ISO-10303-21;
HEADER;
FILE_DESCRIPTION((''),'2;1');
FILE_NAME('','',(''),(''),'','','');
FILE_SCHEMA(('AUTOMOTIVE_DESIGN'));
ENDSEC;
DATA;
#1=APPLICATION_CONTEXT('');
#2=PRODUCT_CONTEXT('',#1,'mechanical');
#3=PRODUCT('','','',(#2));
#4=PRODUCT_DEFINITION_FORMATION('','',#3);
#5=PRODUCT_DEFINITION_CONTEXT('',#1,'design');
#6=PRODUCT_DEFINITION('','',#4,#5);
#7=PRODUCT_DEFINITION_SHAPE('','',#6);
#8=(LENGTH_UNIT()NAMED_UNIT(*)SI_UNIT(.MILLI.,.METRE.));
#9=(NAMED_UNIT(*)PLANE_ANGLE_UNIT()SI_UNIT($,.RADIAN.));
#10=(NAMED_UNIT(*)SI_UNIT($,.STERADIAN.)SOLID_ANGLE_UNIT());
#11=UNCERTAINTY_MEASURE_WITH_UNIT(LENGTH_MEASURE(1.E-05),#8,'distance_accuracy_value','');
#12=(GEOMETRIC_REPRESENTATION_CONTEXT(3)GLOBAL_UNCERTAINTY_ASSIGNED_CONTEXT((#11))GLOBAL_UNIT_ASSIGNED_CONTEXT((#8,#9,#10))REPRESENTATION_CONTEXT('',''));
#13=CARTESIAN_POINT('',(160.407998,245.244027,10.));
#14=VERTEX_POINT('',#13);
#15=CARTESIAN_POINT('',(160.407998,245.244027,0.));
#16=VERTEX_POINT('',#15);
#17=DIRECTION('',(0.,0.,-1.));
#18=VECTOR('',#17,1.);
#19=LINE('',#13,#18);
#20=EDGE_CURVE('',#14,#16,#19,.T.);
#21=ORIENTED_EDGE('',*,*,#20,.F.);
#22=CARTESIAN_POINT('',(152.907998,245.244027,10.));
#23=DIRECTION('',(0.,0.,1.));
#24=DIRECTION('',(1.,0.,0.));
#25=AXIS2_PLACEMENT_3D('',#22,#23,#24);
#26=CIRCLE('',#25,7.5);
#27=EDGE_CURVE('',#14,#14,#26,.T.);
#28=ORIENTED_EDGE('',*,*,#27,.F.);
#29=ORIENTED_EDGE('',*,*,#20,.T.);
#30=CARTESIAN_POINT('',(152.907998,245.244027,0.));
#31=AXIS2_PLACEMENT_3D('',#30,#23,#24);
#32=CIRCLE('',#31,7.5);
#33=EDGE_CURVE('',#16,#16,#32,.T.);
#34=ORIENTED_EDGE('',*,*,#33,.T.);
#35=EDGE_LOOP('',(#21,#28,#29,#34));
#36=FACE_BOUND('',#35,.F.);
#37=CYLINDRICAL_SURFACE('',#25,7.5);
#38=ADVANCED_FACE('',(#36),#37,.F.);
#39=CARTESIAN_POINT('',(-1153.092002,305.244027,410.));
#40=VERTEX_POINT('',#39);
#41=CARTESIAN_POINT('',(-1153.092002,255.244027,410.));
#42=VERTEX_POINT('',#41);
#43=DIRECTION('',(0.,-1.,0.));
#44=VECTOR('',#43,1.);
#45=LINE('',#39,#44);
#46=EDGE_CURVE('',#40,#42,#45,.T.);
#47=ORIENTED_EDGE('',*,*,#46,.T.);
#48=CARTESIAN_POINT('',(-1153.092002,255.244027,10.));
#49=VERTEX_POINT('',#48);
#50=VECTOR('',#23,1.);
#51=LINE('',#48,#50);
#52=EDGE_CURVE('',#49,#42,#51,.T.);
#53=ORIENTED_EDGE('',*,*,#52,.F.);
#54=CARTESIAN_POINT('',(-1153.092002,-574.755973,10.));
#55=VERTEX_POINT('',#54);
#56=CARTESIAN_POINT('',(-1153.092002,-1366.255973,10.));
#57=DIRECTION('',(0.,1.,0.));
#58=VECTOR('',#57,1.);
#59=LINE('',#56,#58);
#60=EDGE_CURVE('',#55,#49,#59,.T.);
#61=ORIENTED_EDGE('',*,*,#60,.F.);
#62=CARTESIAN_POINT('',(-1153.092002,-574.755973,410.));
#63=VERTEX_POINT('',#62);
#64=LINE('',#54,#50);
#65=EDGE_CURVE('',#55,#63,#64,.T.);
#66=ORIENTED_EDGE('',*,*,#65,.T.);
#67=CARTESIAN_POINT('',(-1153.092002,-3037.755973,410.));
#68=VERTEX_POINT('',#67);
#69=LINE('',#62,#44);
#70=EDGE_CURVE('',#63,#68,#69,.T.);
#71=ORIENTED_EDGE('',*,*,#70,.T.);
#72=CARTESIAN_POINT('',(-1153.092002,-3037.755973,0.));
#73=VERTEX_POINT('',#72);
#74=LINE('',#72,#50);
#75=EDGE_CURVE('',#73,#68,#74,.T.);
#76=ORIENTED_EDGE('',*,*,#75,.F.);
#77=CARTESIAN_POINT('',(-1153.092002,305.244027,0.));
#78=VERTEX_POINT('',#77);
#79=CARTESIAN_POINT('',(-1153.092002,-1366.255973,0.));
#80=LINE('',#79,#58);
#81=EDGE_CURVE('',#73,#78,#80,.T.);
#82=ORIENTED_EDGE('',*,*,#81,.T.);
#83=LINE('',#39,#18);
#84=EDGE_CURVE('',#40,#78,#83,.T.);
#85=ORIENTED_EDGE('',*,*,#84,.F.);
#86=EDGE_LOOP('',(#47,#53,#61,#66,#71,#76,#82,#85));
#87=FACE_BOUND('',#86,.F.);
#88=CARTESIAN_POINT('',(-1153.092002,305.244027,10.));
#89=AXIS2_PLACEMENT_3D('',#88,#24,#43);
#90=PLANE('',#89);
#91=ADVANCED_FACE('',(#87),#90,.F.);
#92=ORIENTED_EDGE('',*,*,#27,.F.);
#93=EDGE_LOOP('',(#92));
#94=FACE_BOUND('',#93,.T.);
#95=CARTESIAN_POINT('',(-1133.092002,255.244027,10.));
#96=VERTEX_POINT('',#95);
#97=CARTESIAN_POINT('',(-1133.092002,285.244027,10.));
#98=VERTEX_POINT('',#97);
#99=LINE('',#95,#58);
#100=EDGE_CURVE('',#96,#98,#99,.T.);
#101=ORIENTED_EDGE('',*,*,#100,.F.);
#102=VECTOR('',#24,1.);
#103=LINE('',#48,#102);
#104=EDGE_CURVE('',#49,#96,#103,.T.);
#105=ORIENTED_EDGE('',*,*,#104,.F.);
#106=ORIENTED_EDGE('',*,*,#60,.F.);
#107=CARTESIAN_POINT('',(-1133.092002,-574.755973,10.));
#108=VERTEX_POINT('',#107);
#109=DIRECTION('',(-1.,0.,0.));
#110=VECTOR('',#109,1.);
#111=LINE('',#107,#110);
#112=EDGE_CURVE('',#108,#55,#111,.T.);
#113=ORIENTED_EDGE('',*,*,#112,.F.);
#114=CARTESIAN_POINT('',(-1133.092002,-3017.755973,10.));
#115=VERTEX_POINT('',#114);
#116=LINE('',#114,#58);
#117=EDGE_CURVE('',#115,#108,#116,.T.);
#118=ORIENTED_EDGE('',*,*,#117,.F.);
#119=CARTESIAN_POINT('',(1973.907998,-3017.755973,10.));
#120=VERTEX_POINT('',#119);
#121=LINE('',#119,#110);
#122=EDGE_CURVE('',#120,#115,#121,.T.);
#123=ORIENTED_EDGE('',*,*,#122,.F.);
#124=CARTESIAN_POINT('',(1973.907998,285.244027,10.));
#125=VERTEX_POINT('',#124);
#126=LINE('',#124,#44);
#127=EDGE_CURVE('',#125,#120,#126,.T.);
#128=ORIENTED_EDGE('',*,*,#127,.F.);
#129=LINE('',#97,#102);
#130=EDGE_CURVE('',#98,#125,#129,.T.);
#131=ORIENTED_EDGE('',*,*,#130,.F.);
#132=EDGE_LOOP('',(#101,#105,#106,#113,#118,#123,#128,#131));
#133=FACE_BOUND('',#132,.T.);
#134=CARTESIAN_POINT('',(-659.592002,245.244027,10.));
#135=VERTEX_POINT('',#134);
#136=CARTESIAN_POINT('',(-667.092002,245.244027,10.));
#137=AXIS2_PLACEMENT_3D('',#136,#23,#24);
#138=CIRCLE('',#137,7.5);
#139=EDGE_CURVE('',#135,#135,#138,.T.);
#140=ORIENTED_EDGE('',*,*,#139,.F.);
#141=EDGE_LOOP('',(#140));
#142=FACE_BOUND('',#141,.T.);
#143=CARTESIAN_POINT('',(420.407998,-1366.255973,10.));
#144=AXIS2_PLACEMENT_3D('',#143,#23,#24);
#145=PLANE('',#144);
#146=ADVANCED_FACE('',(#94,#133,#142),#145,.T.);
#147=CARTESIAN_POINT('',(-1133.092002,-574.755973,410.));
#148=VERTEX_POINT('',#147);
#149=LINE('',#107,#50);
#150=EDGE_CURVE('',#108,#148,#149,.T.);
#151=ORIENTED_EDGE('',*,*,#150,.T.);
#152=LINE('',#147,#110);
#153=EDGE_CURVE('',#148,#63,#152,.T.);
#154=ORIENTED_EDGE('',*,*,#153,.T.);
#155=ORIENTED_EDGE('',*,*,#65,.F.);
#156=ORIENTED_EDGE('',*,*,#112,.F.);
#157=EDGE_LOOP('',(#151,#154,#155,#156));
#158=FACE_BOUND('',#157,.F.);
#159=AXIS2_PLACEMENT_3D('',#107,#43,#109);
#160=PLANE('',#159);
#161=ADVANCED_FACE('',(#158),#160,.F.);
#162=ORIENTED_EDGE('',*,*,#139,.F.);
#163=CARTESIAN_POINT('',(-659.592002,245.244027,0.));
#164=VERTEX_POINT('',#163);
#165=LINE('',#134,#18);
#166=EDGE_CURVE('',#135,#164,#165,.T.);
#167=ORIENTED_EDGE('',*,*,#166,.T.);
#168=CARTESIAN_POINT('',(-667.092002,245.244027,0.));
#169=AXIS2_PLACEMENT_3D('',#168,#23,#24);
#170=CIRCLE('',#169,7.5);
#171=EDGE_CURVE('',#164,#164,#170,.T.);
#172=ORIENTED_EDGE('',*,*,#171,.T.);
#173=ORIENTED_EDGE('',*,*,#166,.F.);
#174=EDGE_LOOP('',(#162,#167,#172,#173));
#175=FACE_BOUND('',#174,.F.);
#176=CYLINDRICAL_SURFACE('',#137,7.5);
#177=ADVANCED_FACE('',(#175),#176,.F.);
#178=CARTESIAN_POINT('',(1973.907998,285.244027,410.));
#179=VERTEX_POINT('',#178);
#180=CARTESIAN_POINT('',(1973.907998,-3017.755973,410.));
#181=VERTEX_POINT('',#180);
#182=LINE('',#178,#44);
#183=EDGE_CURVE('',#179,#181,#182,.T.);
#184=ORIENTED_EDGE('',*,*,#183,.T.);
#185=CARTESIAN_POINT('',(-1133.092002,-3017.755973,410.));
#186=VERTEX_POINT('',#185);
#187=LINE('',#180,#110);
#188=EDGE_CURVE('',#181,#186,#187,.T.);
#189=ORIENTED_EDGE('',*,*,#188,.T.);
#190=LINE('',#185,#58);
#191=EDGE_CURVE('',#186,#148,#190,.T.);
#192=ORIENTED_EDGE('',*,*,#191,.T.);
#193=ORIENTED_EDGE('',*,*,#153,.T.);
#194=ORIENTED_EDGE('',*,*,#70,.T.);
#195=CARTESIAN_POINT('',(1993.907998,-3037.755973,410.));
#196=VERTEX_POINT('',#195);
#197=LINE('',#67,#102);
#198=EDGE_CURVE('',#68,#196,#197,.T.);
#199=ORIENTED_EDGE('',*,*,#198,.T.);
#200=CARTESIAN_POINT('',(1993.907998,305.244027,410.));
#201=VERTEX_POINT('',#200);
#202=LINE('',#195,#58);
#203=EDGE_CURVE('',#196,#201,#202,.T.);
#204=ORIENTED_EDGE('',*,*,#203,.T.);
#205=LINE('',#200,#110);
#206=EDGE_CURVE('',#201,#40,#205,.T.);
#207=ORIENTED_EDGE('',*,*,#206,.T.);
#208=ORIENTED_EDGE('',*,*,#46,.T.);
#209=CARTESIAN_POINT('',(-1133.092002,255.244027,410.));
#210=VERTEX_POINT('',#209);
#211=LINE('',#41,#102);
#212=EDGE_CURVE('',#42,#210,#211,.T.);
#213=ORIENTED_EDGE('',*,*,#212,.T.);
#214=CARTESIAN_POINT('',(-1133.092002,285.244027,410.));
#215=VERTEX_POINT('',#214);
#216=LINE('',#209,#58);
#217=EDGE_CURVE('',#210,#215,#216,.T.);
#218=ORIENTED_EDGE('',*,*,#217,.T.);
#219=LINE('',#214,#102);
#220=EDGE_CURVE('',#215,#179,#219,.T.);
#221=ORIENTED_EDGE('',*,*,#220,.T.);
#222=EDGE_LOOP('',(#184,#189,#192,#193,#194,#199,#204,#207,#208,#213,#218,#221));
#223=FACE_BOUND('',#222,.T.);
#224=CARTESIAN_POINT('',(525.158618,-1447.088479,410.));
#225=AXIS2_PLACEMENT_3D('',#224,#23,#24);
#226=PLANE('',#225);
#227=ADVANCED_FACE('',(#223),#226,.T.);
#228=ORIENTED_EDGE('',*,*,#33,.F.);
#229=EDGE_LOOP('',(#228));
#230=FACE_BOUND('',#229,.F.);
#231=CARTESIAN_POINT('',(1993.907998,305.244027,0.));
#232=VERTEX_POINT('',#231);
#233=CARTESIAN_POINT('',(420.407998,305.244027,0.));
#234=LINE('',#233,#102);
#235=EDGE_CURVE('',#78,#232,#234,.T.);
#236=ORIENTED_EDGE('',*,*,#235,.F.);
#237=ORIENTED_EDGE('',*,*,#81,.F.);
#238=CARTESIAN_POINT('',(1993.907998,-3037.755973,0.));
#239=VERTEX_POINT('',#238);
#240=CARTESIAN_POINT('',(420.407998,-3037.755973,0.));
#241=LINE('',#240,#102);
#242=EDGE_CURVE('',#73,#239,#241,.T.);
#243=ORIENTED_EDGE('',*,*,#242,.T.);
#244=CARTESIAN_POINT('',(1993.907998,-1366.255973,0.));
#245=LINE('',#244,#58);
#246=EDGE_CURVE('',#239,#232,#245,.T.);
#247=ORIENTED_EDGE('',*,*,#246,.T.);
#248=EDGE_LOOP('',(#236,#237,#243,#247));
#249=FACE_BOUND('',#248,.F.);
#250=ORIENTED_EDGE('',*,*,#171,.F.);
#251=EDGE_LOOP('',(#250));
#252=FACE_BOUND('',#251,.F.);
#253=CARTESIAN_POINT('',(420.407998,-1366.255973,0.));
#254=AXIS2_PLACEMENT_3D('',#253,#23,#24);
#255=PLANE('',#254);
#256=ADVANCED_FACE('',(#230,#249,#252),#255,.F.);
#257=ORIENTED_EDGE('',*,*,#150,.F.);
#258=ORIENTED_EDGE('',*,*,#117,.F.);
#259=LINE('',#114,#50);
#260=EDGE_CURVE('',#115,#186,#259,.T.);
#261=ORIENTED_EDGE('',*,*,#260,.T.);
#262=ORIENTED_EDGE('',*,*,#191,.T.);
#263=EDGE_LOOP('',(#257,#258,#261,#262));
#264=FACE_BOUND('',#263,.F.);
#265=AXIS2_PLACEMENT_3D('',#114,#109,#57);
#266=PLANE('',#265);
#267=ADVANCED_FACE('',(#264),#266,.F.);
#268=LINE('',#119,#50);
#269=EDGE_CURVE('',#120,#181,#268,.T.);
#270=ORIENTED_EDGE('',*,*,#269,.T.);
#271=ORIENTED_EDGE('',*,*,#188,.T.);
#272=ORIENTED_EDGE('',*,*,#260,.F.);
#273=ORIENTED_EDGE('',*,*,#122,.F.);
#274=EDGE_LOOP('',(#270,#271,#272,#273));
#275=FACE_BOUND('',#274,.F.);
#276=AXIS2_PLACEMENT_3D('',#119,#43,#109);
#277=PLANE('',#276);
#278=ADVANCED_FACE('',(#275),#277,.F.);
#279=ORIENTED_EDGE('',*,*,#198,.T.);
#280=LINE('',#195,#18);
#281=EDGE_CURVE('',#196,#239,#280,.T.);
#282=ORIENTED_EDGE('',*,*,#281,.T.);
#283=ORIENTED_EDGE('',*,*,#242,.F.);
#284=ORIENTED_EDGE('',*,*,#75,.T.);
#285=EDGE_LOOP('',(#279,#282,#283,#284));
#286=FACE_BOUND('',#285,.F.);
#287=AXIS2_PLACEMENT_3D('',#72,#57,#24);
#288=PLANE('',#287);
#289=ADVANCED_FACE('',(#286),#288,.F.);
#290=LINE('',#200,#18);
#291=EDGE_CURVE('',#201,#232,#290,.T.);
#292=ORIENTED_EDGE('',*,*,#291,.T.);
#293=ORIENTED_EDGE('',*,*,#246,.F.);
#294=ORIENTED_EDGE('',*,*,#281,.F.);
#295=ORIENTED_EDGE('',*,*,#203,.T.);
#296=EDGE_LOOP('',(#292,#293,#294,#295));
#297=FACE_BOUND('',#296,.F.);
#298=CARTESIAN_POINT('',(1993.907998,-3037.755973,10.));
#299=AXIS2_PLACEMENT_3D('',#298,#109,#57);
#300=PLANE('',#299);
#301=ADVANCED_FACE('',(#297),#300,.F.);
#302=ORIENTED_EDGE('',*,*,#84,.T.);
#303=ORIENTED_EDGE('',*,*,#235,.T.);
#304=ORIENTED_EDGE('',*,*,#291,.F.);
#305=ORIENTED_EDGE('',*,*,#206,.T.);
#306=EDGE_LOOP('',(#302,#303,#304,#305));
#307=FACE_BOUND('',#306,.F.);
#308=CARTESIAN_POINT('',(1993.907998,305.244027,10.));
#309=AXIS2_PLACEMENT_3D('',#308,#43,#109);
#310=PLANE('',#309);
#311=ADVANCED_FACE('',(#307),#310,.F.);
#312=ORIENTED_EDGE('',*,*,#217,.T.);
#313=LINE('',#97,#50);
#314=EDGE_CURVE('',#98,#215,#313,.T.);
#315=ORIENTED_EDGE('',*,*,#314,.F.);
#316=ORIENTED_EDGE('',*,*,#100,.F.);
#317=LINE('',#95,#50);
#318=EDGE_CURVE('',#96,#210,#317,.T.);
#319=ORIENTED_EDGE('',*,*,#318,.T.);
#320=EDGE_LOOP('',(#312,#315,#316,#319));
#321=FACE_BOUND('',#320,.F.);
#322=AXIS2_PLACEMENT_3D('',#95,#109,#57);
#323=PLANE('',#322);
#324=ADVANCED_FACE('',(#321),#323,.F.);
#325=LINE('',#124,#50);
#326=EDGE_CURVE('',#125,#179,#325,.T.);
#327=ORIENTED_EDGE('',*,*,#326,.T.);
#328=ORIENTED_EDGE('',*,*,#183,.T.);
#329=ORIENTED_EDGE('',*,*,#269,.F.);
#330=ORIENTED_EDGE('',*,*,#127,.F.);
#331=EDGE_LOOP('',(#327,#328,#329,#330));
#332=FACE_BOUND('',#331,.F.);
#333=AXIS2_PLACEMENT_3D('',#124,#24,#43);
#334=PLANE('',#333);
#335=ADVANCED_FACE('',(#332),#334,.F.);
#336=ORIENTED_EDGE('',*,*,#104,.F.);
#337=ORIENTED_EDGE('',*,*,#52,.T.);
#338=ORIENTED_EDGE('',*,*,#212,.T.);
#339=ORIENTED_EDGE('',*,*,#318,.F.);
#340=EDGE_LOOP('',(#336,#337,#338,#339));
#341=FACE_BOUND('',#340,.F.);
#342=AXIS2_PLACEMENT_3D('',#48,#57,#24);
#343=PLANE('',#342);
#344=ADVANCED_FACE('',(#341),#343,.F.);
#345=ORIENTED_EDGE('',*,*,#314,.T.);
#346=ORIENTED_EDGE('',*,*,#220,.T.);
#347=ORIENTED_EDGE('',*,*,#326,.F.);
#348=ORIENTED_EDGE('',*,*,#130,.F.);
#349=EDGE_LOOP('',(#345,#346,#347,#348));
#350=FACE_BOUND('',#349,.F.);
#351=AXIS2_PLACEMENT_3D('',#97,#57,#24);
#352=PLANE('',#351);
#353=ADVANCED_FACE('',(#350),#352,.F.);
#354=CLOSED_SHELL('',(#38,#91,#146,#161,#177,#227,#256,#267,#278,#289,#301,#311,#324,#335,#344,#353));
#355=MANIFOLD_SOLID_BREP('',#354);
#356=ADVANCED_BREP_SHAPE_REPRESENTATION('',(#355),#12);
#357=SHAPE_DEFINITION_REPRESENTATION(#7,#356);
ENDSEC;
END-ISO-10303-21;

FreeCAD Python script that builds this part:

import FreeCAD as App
import Part
import Sketcher

V = App.Vector


def add_polygon(sketch, points):
    """Adds a closed chain of lines whose ends are joined by coincident constraints."""
    first, n = sketch.GeometryCount, len(points)
    for a, b in zip(points, points[1:] + points[:1]):
        sketch.addGeometry(Part.LineSegment(App.Vector(*a, 0), App.Vector(*b, 0)), False)
    for i in range(n):
        sketch.addConstraint(Sketcher.Constraint("Coincident", first + i, 2, first + (i + 1) % n, 1))

doc = App.newDocument("Part")
body = doc.addObject("PartDesign::Body", "Body")

# Sketch on XY plane
sketch1 = body.newObject("Sketcher::SketchObject", "Sketch")
sketch1.AttachmentSupport = (doc.getObject("XY_Plane"), [""])
sketch1.MapMode = "FlatFace"
add_polygon(sketch1, [(-1153, 305), (-1153, -3038), (1994, -3038), (1994, 305)])  # lines 0-3
sketch1.addConstraint([
    Sketcher.Constraint("Vertical", 0),
    Sketcher.Constraint("Horizontal", 1),
    Sketcher.Constraint("Vertical", 2),
    Sketcher.Constraint("Horizontal", 3),
    Sketcher.Constraint("DistanceX", 1, 1, 1, 2, 3147.0),
    Sketcher.Constraint("DistanceY", 0, 2, 0, 1, 3343.0),
    Sketcher.Constraint("DistanceX", 0, 2, -1, 1, 1153.092002),
    Sketcher.Constraint("DistanceY", 0, 2, -1, 1, 3037.755973),
])
pad1 = body.newObject("PartDesign::Pad", "Pad")
pad1.Profile = sketch1
pad1.Length = 10

# Sketch on XY plane
sketch2 = body.newObject("Sketcher::SketchObject", "Sketch001")
sketch2.AttachmentSupport = (doc.getObject("XY_Plane"), [""])
sketch2.MapMode = "FlatFace"
sketch2.AttachmentOffset = App.Placement(V(0, 0, 10), App.Rotation())
add_polygon(sketch2, [(-1153, 305), (-1153, 255), (-1133, 255), (-1133, 285), (1974, 285), (1974, -3018), (-1133, -3018), (-1133, -575), (-1153, -575), (-1153, -3038), (1994, -3038), (1994, 305)])  # lines 0-11
sketch2.addConstraint([
    Sketcher.Constraint("Vertical", 0),
    Sketcher.Constraint("Horizontal", 1),
    Sketcher.Constraint("Vertical", 2),
    Sketcher.Constraint("Horizontal", 3),
    Sketcher.Constraint("Vertical", 4),
    Sketcher.Constraint("Horizontal", 5),
    Sketcher.Constraint("Vertical", 6),
    Sketcher.Constraint("Horizontal", 7),
    Sketcher.Constraint("Vertical", 8),
    Sketcher.Constraint("Horizontal", 9),
    Sketcher.Constraint("Vertical", 10),
    Sketcher.Constraint("Horizontal", 11),
    Sketcher.Constraint("Vertical", 2, 2, 5, 2),
    Sketcher.Constraint("Vertical", 0, 2, 7, 2),
    Sketcher.Constraint("DistanceX", 1, 1, 1, 2, 20.0),
    Sketcher.Constraint("DistanceX", 3, 1, 3, 2, 3107.0),
    Sketcher.Constraint("DistanceX", 9, 1, 9, 2, 3147.0),
    Sketcher.Constraint("DistanceY", 0, 2, 0, 1, 50.0),
    Sketcher.Constraint("DistanceY", 2, 1, 2, 2, 30.0),
    Sketcher.Constraint("DistanceY", 4, 2, 4, 1, 3303.0),
    Sketcher.Constraint("DistanceY", 6, 1, 6, 2, 2443.0),
    Sketcher.Constraint("DistanceY", 8, 2, 8, 1, 2463.0),
    Sketcher.Constraint("DistanceX", 0, 2, -1, 1, 1153.092002),
    Sketcher.Constraint("DistanceY", -1, 1, 0, 2, 255.244027),
])
pad2 = body.newObject("PartDesign::Pad", "Pad001")
pad2.Profile = sketch2
pad2.Length = 400

# Sketch on XY plane
sketch3 = body.newObject("Sketcher::SketchObject", "Sketch002")
sketch3.AttachmentSupport = (doc.getObject("XY_Plane"), [""])
sketch3.MapMode = "FlatFace"
sketch3.AttachmentOffset = App.Placement(V(0, 0, 10), App.Rotation())
sketch3.addGeometry([
    Part.Circle(V(-667, 245, 0), V(0, 0, 1), 8),
    Part.Circle(V(153, 245, 0), V(0, 0, 1), 8),
], False)
sketch3.addConstraint([
    Sketcher.Constraint("Equal", 0, 1),
    Sketcher.Constraint("Horizontal", 0, 3, 1, 3),
    Sketcher.Constraint("Diameter", 0, 15.0),
    Sketcher.Constraint("DistanceX", 0, 3, 1, 3, 820.0),
    Sketcher.Constraint("DistanceX", 0, 3, -1, 1, 667.092002),
    Sketcher.Constraint("DistanceY", -1, 1, 0, 3, 245.244027),
])
pocket1 = body.newObject("PartDesign::Pocket", "Pocket")
pocket1.Profile = sketch3
pocket1.Length = 25

doc.recompute()
